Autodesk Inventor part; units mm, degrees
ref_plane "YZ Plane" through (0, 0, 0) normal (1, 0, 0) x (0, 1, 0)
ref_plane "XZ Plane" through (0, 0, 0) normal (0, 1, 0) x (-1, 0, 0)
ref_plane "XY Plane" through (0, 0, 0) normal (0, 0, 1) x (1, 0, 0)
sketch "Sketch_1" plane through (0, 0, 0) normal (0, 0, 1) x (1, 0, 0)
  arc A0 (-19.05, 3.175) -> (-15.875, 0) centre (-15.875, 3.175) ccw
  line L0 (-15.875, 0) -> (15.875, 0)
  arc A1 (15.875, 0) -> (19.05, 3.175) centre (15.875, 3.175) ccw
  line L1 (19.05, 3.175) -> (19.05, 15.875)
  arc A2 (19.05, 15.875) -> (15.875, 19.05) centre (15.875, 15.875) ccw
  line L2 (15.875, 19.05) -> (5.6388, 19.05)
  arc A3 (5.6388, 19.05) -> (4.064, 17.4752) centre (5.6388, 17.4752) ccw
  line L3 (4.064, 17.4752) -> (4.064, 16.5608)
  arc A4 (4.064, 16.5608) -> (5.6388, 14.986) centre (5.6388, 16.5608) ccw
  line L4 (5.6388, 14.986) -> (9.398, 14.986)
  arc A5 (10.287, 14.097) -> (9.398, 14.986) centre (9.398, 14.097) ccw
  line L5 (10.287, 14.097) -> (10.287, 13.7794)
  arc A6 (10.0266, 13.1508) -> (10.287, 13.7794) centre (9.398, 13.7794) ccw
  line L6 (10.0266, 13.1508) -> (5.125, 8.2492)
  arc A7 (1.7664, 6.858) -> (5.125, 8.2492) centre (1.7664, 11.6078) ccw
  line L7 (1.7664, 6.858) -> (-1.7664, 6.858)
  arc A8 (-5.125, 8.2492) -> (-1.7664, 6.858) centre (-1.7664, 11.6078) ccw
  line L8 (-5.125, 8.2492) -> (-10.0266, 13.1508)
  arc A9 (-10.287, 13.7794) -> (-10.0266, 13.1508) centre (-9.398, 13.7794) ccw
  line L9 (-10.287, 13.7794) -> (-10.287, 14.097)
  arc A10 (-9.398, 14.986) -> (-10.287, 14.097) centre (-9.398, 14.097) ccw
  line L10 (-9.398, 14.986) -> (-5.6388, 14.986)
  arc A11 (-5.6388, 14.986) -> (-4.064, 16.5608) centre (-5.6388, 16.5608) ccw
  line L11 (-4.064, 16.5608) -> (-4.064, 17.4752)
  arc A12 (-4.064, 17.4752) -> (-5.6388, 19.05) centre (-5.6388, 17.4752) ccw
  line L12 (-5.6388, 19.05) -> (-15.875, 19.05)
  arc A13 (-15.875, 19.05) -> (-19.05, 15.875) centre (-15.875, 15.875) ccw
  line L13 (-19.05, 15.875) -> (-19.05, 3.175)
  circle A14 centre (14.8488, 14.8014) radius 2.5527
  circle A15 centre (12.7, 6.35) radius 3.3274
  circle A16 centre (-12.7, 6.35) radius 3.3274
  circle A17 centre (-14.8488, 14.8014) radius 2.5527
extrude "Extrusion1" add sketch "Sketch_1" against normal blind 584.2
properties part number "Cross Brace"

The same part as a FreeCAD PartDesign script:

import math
import FreeCAD as App
import Part
import Sketcher
from FreeCAD import Vector
Q = App.Units.Quantity

doc = App.newDocument("Part")
params = doc.addObject("Spreadsheet::Sheet", "Params")
for row, (alias, value) in enumerate([
    ("sketch1_diameter", "0.262 in"),
    ("sketch1_diameter2", "0.201 in"),
    ("sketch1_height", "0.5 in"),
    ("sketch1_radius", "0.125 in"),
    ("sketch1_radius2", "0.062 in"),
    ("pad1_length", "23 in"),
], start=1):
    params.set(f"A{row}", alias)
    params.set(f"B{row}", "=" + value)
    params.setAlias(f"B{row}", alias)

body = doc.addObject("PartDesign::Body", "Body")

# Sketch on XY plane
sketch1 = body.newObject("Sketcher::SketchObject", "Sketch")
sketch1.AttachmentSupport = (doc.getObject("XY_Plane"), [""])
sketch1.MapMode = "FlatFace"
sketch1.addGeometry([
    Part.LineSegment(Vector(-19.05, 15.88, 0), Vector(-19.05, 3.17, 0)),  # 0
    Part.ArcOfCircle(Part.Circle(Vector(-15.88, 3.17, 0), Vector(0, 0, 1), 3.18), math.radians(180), math.radians(270)),  # 1
    Part.LineSegment(Vector(-15.88, 0, 0), Vector(15.88, 0, 0)),  # 2
    Part.ArcOfCircle(Part.Circle(Vector(15.88, 3.17, 0), Vector(0, 0, 1), 3.17), math.radians(-90), math.radians(0)),  # 3
    Part.LineSegment(Vector(19.05, 3.17, 0), Vector(19.05, 15.88, 0)),  # 4
    Part.ArcOfCircle(Part.Circle(Vector(15.88, 15.88, 0), Vector(0, 0, 1), 3.18), math.radians(0), math.radians(90)),  # 5
    Part.LineSegment(Vector(15.88, 19.05, 0), Vector(5.64, 19.05, 0)),  # 6
    Part.ArcOfCircle(Part.Circle(Vector(5.64, 17.48, 0), Vector(0, 0, 1), 1.57), math.radians(90), math.radians(180)),  # 7
    Part.LineSegment(Vector(4.06, 17.48, 0), Vector(4.06, 16.56, 0)),  # 8
    Part.ArcOfCircle(Part.Circle(Vector(5.64, 16.56, 0), Vector(0, 0, 1), 1.57), math.radians(180), math.radians(270)),  # 9
    Part.LineSegment(Vector(5.64, 14.99, 0), Vector(9.4, 14.99, 0)),  # 10
    Part.ArcOfCircle(Part.Circle(Vector(9.4, 14.1, 0), Vector(0, 0, 1), 0.89), math.radians(0), math.radians(90)),  # 11
    Part.LineSegment(Vector(10.29, 14.1, 0), Vector(10.29, 13.78, 0)),  # 12
    Part.ArcOfCircle(Part.Circle(Vector(9.4, 13.78, 0), Vector(0, 0, 1), 0.89), math.radians(-45), math.radians(0)),  # 13
    Part.LineSegment(Vector(10.03, 13.15, 0), Vector(5.12, 8.25, 0)),  # 14
    Part.ArcOfCircle(Part.Circle(Vector(1.77, 11.61, 0), Vector(0, 0, 1), 4.75), math.radians(-90), math.radians(-45)),  # 15
    Part.LineSegment(Vector(1.77, 6.86, 0), Vector(-1.77, 6.86, 0)),  # 16
    Part.ArcOfCircle(Part.Circle(Vector(-1.77, 11.61, 0), Vector(0, 0, 1), 4.75), math.radians(-135), math.radians(-90)),  # 17
    Part.LineSegment(Vector(-5.12, 8.25, 0), Vector(-10.03, 13.15, 0)),  # 18
    Part.ArcOfCircle(Part.Circle(Vector(-9.4, 13.78, 0), Vector(0, 0, 1), 0.89), math.radians(180), math.radians(225)),  # 19
    Part.LineSegment(Vector(-10.29, 13.78, 0), Vector(-10.29, 14.1, 0)),  # 20
    Part.ArcOfCircle(Part.Circle(Vector(-9.4, 14.1, 0), Vector(0, 0, 1), 0.89), math.radians(90), math.radians(180)),  # 21
    Part.LineSegment(Vector(-9.4, 14.99, 0), Vector(-5.64, 14.99, 0)),  # 22
    Part.ArcOfCircle(Part.Circle(Vector(-5.64, 16.56, 0), Vector(0, 0, 1), 1.57), math.radians(-90), math.radians(0)),  # 23
    Part.LineSegment(Vector(-4.06, 16.56, 0), Vector(-4.06, 17.48, 0)),  # 24
    Part.ArcOfCircle(Part.Circle(Vector(-5.64, 17.48, 0), Vector(0, 0, 1), 1.57), math.radians(0), math.radians(90)),  # 25
    Part.LineSegment(Vector(-5.64, 19.05, 0), Vector(-15.88, 19.05, 0)),  # 26
    Part.ArcOfCircle(Part.Circle(Vector(-15.88, 15.88, 0), Vector(0, 0, 1), 3.18), math.radians(90), math.radians(180)),  # 27
    Part.Circle(Vector(-12.7, 6.35, 0), Vector(0, 0, 1), 3.33),  # 28
    Part.Circle(Vector(12.7, 6.35, 0), Vector(0, 0, 1), 3.33),  # 29
    Part.Circle(Vector(-14.85, 14.8, 0), Vector(0, 0, 1), 2.55),  # 30
    Part.Circle(Vector(14.85, 14.8, 0), Vector(0, 0, 1), 2.55),  # 31
], False)
sketch1.addConstraint([
    Sketcher.Constraint("Tangent", 0, 2, 1, 1),
    Sketcher.Constraint("Tangent", 1, 2, 2, 1),
    Sketcher.Constraint("Tangent", 2, 2, 3, 1),
    Sketcher.Constraint("Tangent", 3, 2, 4, 1),
    Sketcher.Constraint("Tangent", 4, 2, 5, 1),
    Sketcher.Constraint("Tangent", 5, 2, 6, 1),
    Sketcher.Constraint("Tangent", 6, 2, 7, 1),
    Sketcher.Constraint("Tangent", 7, 2, 8, 1),
    Sketcher.Constraint("Tangent", 8, 2, 9, 1),
    Sketcher.Constraint("Tangent", 9, 2, 10, 1),
    Sketcher.Constraint("Tangent", 10, 2, 11, 2),
    Sketcher.Constraint("Tangent", 11, 1, 12, 1),
    Sketcher.Constraint("Tangent", 12, 2, 13, 2),
    Sketcher.Constraint("Tangent", 13, 1, 14, 1),
    Sketcher.Constraint("Tangent", 14, 2, 15, 2),
    Sketcher.Constraint("Tangent", 15, 1, 16, 1),
    Sketcher.Constraint("Tangent", 16, 2, 17, 2),
    Sketcher.Constraint("Tangent", 17, 1, 18, 1),
    Sketcher.Constraint("Tangent", 18, 2, 19, 2),
    Sketcher.Constraint("Tangent", 19, 1, 20, 1),
    Sketcher.Constraint("Tangent", 20, 2, 21, 2),
    Sketcher.Constraint("Tangent", 21, 1, 22, 1),
    Sketcher.Constraint("Tangent", 22, 2, 23, 1),
    Sketcher.Constraint("Tangent", 23, 2, 24, 1),
    Sketcher.Constraint("Tangent", 24, 2, 25, 1),
    Sketcher.Constraint("Tangent", 25, 2, 26, 1),
    Sketcher.Constraint("Tangent", 26, 2, 27, 1),
    Sketcher.Constraint("Tangent", 27, 2, 0, 1),
    Sketcher.Constraint("Vertical", 0),
    Sketcher.Constraint("Horizontal", 2),
    Sketcher.Constraint("Vertical", 4),
    Sketcher.Constraint("Horizontal", 6),
    Sketcher.Constraint("Vertical", 8),
    Sketcher.Constraint("Horizontal", 10),
    Sketcher.Constraint("Vertical", 12),
    Sketcher.Constraint("Horizontal", 16),
    Sketcher.Constraint("Vertical", 20),
    Sketcher.Constraint("Horizontal", 22),
    Sketcher.Constraint("Vertical", 24),
    Sketcher.Constraint("Horizontal", 26),
    Sketcher.Constraint("Equal", 1, 3),
    Sketcher.Constraint("Equal", 3, 5),
    Sketcher.Constraint("Equal", 7, 9),
    Sketcher.Constraint("Equal", 11, 13),
    Sketcher.Constraint("Equal", 15, 17),
    Sketcher.Constraint("Equal", 13, 19),
    Sketcher.Constraint("Equal", 19, 21),
    Sketcher.Constraint("Equal", 9, 23),
    Sketcher.Constraint("Equal", 23, 25),
    Sketcher.Constraint("Equal", 5, 27),
    Sketcher.Constraint("Equal", 28, 29),
    Sketcher.Constraint("Equal", 30, 31),
    Sketcher.Constraint("Symmetric", 1, 2, 2, 2, -1, 1),
    Sketcher.Constraint("Symmetric", 13, 3, 19, 3, -2),
    Sketcher.Constraint("Symmetric", 9, 3, 23, 3, -2),
    Sketcher.Constraint("Symmetric", 28, 3, 29, 3, -2),
    Sketcher.Constraint("Symmetric", 30, 3, 31, 3, -2),
    Sketcher.Constraint("Perpendicular", 14, 18),
    Sketcher.Constraint("Horizontal", 7, 3, 25, 3),
    Sketcher.Constraint("Horizontal", 14, 2, 17, 1),
    Sketcher.Constraint("Diameter", 28, Q("0.262 in")),
    Sketcher.Constraint("Diameter", 30, Q("0.201 in")),
    Sketcher.Constraint("DistanceY", 0, 2, 0, 1, Q("0.5 in")),
    Sketcher.Constraint("Radius", 1, Q("0.125 in")),
    Sketcher.Constraint("Radius", 7, Q("0.062 in")),
    Sketcher.Constraint("Radius", 11, Q("0.035 in")),
    Sketcher.Constraint("Radius", 15, Q("0.187 in")),
    Sketcher.Constraint("DistanceX", 2, 1, 2, 2, Q("1.25 in")),
    Sketcher.Constraint("DistanceX", 28, 3, -1, 1, Q("0.5 in")),
    Sketcher.Constraint("DistanceX", 6, 2, 6, 1, Q("0.403 in")),
    Sketcher.Constraint("DistanceX", 10, 1, 10, 2, Q("0.148 in")),
    Sketcher.Constraint("DistanceY", 8, 2, 8, 1, Q("0.036 in")),
    Sketcher.Constraint("DistanceY", -1, 1, 28, 3, Q("0.25 in")),
    Sketcher.Constraint("DistanceY", -1, 1, 15, 1, Q("0.27 in")),
    Sketcher.Constraint("DistanceY", 12, 2, 12, 1, Q("0.0125 in")),
    Sketcher.Constraint("DistanceX", 30, 3, -1, 1, Q("0.5846 in")),
    Sketcher.Constraint("DistanceY", -1, 1, 30, 3, 14.8014),
])
sketch1.setExpression("Constraints[60]", "Params.sketch1_diameter")
sketch1.setExpression("Constraints[61]", "Params.sketch1_diameter2")
sketch1.setExpression("Constraints[62]", "Params.sketch1_height")
sketch1.setExpression("Constraints[63]", "Params.sketch1_radius")
sketch1.setExpression("Constraints[64]", "Params.sketch1_radius2")
pad1 = body.newObject("PartDesign::Pad", "Pad")
pad1.Profile = sketch1
pad1.setExpression("Length", "Params.pad1_length")
pad1.Reversed = True

doc.recompute()
